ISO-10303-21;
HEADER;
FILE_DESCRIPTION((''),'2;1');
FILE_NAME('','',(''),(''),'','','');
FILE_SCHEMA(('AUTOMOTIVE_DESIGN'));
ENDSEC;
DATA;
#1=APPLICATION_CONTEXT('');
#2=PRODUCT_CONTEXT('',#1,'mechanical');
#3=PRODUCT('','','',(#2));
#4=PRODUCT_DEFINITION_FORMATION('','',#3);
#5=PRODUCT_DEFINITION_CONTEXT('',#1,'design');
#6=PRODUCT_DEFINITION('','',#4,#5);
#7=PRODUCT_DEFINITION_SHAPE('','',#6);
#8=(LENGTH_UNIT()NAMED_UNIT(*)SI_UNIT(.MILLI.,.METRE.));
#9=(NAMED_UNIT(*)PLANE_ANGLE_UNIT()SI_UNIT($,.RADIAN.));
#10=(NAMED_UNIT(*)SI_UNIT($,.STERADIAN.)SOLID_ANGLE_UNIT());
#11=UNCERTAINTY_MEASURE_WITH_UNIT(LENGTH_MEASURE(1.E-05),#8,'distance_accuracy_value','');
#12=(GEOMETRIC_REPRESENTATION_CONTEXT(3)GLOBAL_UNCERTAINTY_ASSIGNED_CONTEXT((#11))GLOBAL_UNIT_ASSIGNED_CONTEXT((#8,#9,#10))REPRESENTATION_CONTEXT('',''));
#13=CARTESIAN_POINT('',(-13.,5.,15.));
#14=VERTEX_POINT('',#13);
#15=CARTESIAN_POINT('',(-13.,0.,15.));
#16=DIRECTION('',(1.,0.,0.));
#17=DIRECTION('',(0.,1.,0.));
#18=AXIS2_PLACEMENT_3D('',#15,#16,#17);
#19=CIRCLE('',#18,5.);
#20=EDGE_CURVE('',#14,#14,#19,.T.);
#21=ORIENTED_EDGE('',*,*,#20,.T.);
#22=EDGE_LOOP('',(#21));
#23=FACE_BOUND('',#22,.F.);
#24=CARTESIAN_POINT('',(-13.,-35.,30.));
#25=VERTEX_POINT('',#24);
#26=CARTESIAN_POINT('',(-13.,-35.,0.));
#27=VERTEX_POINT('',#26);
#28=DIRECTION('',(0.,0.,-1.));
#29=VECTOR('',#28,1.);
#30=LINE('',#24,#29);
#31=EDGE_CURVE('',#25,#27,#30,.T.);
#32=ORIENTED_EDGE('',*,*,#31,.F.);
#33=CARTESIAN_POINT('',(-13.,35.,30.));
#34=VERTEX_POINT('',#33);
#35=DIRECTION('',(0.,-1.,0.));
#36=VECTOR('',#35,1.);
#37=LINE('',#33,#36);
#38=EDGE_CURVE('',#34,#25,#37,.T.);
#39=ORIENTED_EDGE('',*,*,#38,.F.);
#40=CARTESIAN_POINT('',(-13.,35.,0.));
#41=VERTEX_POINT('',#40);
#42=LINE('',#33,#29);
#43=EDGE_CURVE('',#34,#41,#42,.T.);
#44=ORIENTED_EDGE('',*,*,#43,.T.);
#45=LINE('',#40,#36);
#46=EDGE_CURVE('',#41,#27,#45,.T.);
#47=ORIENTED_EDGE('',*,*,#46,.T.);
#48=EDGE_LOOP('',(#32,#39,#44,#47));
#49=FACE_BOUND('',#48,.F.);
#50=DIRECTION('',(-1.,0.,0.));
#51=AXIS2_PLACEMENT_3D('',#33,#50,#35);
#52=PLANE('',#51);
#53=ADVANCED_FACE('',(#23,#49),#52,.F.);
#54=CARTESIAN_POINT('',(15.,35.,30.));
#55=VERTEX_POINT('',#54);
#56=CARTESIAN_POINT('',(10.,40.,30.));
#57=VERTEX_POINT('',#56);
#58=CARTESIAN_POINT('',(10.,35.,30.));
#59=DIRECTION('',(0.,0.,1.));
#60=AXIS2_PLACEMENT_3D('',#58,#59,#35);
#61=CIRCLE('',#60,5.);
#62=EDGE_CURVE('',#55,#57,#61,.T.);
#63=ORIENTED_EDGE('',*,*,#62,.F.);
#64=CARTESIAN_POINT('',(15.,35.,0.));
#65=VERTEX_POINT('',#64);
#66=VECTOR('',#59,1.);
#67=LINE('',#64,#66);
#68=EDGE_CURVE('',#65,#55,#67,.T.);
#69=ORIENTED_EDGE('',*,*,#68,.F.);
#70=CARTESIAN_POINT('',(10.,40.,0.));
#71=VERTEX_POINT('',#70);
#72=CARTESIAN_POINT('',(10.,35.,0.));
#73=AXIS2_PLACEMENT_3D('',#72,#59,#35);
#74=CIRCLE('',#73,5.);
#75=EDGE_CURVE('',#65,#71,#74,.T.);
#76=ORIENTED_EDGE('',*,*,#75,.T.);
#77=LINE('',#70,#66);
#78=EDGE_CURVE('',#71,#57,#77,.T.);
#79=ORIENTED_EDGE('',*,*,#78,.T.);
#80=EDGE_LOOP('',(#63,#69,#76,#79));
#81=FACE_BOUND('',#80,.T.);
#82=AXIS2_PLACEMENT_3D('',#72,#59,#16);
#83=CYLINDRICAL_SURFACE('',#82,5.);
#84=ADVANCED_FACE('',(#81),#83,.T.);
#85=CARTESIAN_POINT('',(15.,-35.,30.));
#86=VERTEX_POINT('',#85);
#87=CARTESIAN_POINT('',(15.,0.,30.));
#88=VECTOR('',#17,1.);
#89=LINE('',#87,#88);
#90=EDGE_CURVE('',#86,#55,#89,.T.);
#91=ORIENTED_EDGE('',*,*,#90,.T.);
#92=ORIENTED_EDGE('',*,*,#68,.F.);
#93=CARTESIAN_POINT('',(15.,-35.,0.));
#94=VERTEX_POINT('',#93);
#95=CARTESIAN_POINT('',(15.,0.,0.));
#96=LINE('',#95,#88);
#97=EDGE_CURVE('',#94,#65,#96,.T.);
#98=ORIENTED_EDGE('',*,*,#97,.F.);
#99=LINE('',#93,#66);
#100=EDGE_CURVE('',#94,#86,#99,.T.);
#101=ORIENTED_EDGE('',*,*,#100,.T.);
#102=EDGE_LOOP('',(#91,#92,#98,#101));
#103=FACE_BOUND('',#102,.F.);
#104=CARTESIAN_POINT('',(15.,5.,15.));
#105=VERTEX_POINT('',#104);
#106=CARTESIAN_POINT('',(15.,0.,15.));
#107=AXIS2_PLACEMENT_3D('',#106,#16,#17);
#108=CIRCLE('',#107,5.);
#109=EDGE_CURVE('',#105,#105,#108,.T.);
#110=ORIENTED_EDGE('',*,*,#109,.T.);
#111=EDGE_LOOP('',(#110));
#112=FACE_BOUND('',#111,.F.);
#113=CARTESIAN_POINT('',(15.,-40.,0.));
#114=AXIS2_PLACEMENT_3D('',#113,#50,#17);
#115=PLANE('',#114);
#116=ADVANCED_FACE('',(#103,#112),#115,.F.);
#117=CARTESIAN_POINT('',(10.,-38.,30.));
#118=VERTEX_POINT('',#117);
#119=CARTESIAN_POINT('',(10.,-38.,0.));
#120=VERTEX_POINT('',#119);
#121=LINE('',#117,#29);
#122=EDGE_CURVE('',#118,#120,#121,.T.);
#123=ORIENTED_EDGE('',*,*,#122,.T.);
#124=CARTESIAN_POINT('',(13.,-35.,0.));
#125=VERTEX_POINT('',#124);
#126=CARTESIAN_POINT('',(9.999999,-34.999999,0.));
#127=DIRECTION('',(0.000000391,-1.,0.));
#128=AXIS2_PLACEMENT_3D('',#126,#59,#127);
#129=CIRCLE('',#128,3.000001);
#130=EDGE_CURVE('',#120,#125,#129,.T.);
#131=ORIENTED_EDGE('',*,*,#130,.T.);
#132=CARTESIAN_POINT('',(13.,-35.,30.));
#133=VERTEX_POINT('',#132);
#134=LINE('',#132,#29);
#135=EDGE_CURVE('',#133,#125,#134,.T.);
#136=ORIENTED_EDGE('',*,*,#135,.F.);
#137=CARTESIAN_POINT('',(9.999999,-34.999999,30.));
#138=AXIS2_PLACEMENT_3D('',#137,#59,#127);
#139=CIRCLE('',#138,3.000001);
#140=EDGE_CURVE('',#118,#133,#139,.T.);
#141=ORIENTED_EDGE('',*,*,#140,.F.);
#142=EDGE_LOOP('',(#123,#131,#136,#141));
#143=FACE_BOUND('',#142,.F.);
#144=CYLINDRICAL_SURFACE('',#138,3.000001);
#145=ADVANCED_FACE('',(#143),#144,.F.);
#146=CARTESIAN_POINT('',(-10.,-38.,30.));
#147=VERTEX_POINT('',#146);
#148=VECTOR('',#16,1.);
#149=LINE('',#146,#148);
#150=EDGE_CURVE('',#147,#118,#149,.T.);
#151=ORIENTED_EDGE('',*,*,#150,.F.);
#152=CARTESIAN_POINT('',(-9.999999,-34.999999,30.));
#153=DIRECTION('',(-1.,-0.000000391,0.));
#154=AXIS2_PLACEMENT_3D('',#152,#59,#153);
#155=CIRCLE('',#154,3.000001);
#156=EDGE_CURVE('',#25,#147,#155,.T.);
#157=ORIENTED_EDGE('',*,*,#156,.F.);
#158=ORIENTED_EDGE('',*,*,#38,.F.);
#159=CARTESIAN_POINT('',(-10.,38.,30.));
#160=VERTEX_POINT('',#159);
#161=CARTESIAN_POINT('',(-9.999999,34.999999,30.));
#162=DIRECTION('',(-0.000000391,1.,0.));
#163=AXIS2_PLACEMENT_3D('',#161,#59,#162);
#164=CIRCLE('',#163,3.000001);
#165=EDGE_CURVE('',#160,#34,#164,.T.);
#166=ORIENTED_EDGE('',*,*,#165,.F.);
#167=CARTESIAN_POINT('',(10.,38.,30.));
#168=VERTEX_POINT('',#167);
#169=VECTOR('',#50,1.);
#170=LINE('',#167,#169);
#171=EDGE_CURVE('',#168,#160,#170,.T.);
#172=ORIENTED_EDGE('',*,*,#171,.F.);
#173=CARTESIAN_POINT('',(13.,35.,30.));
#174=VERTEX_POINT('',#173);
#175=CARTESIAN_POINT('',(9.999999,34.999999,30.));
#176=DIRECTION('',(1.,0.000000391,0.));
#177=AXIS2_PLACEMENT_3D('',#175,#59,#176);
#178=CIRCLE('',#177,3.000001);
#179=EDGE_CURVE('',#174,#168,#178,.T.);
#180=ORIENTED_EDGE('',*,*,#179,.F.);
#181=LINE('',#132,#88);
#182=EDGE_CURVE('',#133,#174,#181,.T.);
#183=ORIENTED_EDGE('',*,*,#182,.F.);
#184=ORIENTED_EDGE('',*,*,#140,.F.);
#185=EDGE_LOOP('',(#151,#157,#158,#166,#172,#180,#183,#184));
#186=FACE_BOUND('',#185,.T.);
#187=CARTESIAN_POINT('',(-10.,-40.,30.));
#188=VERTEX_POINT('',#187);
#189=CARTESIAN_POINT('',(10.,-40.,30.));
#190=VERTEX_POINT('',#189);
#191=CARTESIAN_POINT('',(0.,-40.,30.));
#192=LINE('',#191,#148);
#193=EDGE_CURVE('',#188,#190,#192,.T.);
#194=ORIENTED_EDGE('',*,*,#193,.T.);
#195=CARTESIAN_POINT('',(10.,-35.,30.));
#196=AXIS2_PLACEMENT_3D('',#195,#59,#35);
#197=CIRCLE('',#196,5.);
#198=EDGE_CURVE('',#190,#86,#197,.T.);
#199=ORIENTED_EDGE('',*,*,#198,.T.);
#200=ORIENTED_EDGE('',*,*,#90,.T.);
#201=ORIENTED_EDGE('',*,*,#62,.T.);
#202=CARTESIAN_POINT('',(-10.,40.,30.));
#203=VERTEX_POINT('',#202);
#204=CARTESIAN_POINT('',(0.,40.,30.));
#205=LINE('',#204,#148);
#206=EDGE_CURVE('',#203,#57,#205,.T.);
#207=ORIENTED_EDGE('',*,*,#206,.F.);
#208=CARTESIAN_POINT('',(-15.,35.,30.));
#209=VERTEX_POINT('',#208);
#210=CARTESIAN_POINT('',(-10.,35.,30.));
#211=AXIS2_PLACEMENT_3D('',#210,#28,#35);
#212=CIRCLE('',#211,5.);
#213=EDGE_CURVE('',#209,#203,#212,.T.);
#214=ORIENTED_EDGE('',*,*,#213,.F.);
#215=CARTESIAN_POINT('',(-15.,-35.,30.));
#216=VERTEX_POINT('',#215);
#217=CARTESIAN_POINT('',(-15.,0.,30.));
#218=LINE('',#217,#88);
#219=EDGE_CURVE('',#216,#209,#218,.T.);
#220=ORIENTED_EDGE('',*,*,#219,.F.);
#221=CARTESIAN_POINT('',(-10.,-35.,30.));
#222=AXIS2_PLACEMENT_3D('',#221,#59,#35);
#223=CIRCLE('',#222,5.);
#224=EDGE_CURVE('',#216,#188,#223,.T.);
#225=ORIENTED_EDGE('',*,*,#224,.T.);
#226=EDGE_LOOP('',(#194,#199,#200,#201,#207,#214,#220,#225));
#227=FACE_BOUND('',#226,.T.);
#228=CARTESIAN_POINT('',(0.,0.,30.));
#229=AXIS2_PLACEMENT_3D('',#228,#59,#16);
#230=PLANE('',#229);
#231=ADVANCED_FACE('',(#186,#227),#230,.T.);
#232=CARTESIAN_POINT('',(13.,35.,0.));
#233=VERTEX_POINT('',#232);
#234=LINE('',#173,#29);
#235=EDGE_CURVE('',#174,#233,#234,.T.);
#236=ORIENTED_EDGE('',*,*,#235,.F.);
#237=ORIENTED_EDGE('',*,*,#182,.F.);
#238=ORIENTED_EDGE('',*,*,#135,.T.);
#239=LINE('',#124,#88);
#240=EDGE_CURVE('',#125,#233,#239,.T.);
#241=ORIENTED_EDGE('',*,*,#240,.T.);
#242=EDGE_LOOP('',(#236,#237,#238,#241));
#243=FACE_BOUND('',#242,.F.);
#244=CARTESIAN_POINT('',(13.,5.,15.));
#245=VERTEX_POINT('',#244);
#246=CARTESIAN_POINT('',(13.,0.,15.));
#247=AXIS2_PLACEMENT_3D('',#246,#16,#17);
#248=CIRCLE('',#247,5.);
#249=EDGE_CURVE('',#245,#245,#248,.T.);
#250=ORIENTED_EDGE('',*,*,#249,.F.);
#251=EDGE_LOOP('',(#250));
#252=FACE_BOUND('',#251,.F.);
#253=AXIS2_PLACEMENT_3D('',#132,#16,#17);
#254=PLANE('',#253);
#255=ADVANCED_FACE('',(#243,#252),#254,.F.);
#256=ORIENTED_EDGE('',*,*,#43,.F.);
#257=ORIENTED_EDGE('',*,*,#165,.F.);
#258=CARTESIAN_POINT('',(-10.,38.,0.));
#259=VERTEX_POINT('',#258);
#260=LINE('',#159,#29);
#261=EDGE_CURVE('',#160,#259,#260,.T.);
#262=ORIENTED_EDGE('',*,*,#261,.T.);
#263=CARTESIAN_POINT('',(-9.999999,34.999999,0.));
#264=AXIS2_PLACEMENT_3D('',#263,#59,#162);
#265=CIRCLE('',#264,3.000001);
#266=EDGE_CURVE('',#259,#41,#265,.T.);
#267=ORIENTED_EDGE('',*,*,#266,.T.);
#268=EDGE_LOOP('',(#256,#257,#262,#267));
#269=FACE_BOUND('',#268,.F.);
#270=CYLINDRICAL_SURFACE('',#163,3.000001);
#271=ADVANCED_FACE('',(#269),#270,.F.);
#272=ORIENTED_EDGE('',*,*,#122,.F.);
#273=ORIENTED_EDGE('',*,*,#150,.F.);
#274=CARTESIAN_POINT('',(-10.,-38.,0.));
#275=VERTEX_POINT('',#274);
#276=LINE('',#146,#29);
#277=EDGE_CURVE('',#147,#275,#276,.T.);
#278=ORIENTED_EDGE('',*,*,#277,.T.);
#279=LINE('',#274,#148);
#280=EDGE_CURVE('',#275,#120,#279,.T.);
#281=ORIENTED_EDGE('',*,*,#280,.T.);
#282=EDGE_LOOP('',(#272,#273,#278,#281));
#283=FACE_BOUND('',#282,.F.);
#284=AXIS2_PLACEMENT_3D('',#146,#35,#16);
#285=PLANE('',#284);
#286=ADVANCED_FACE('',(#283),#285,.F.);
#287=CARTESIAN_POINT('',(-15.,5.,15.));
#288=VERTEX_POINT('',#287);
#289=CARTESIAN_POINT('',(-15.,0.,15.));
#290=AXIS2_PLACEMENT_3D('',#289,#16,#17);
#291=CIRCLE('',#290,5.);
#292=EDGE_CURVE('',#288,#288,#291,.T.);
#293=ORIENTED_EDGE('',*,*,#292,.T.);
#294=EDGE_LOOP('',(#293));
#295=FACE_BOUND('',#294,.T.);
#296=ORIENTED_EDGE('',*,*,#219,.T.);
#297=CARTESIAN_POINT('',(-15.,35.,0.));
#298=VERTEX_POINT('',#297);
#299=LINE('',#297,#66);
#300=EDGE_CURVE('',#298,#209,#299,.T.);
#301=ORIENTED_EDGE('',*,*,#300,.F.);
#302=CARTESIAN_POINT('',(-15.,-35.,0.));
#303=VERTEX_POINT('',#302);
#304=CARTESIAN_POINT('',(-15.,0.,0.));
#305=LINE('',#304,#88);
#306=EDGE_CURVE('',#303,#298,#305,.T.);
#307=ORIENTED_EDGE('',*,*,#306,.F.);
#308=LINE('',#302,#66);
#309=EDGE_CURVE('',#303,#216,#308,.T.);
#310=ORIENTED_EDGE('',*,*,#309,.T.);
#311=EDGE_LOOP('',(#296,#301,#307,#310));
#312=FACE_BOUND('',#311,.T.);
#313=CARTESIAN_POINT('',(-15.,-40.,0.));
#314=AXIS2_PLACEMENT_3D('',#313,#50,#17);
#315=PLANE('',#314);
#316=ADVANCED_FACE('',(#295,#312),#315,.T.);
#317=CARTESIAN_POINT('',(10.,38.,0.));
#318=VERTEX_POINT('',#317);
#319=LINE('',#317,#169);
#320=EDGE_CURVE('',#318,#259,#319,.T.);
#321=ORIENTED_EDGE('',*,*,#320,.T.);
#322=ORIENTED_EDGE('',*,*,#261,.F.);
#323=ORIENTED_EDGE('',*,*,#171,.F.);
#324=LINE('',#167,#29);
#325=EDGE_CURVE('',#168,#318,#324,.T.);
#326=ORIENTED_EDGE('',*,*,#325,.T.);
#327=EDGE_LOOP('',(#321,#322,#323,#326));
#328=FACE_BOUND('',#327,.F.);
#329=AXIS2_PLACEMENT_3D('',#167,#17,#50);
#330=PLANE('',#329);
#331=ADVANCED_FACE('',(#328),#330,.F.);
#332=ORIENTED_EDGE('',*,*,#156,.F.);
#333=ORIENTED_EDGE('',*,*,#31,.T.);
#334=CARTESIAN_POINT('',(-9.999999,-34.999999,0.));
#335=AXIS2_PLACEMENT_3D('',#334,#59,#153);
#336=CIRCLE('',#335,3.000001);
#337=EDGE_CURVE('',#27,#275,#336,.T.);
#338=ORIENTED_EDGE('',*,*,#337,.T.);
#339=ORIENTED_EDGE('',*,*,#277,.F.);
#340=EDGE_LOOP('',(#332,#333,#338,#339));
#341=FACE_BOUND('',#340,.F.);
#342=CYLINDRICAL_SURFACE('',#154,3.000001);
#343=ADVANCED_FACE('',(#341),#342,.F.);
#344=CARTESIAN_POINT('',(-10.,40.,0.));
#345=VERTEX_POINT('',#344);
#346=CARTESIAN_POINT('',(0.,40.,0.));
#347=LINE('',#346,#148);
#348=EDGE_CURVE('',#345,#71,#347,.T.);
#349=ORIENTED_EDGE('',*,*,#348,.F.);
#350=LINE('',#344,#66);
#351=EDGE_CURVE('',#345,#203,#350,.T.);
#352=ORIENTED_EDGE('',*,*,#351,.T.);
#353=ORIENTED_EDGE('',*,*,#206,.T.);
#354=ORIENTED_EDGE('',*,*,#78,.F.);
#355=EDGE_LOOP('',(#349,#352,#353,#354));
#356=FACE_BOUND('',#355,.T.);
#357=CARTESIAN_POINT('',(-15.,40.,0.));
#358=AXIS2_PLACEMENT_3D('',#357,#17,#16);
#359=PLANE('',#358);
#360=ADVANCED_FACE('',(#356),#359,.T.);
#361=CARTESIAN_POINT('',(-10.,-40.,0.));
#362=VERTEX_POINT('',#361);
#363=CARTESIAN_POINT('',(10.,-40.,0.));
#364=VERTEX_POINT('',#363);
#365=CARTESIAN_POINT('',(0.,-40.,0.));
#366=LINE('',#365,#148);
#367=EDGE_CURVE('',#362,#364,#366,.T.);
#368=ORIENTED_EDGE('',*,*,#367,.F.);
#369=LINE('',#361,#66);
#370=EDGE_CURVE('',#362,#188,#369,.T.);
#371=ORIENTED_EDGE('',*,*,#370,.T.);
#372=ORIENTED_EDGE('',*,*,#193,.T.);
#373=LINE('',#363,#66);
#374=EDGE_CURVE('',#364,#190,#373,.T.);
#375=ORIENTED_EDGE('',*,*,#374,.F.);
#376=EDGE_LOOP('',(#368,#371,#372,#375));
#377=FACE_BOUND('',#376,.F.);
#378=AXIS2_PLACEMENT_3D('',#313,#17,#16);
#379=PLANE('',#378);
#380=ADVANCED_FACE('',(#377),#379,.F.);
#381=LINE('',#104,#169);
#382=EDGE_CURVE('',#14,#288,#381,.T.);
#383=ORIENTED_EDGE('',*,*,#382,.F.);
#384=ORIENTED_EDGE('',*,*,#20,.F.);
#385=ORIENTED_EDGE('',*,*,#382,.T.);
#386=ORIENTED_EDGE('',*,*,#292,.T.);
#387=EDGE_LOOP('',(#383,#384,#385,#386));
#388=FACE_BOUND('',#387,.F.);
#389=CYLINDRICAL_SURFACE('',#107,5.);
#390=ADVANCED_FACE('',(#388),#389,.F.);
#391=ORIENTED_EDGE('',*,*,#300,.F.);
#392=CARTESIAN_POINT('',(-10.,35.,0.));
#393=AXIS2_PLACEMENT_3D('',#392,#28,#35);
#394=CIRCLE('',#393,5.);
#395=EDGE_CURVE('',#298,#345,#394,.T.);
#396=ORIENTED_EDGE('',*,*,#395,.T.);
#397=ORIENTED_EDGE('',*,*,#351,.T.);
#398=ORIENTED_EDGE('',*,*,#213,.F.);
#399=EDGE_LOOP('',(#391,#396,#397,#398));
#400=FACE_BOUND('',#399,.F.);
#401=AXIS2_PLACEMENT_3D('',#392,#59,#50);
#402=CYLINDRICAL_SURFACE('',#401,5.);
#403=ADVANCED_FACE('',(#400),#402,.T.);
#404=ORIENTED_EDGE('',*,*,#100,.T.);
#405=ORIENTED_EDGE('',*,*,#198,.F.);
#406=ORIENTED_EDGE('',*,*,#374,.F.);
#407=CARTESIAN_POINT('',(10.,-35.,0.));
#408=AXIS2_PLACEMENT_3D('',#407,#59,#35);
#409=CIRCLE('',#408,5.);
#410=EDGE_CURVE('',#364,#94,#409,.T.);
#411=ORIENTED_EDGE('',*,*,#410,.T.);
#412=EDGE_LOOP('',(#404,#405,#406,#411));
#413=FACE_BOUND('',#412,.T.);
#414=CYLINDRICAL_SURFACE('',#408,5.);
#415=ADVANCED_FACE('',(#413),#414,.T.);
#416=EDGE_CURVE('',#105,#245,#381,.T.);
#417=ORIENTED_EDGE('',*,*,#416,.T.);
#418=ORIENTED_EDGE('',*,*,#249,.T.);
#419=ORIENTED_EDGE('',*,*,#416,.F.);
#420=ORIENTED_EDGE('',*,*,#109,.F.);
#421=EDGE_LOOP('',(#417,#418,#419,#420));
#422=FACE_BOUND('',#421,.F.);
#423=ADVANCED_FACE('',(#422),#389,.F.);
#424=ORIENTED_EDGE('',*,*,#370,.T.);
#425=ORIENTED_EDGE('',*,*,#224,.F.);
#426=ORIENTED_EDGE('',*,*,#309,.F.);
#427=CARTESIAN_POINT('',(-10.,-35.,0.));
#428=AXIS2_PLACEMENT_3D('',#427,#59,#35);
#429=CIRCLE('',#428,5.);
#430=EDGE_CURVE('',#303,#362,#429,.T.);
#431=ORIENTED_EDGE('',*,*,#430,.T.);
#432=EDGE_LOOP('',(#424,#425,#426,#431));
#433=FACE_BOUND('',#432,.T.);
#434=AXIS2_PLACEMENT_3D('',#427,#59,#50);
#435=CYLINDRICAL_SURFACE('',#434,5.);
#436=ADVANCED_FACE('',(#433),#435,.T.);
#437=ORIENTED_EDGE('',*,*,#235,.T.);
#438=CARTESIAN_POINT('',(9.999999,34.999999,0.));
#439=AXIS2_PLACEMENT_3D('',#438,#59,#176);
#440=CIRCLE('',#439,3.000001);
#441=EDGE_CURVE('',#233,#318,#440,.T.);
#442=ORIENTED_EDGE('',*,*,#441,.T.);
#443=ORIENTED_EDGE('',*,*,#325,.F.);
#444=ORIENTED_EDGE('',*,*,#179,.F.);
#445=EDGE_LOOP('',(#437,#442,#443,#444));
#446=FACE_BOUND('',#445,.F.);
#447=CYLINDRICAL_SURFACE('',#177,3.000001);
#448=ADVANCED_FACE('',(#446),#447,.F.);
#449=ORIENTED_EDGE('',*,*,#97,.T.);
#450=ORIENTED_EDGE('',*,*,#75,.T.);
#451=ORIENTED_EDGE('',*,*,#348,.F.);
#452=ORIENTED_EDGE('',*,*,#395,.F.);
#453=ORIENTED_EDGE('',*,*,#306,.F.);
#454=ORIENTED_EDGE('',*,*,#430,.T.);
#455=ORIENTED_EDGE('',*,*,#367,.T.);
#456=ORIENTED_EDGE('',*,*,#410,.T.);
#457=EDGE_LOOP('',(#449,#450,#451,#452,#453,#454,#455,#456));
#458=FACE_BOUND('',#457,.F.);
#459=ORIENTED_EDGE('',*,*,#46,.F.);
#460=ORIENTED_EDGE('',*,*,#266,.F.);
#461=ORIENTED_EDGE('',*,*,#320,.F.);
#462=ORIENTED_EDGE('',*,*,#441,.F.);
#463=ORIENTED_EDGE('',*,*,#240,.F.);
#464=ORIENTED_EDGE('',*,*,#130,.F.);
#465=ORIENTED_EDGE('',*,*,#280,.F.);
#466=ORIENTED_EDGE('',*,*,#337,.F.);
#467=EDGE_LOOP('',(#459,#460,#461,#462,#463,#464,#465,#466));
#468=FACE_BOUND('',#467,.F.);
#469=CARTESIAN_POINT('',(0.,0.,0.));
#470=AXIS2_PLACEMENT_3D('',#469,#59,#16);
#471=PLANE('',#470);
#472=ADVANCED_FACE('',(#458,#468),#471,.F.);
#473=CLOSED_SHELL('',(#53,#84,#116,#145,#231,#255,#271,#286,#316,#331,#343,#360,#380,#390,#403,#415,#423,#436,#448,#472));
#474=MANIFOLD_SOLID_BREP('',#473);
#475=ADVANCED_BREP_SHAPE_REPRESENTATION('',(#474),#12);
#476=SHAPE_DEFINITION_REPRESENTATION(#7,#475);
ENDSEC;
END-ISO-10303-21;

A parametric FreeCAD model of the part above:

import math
import FreeCAD as App
import Part
import Sketcher
Q = App.Units.Quantity


def edges_at(feature, points):
    """Names of the edges that pass closest to the given points."""
    edges = feature.Shape.Edges
    near = lambda p: min(range(len(edges)), key=lambda i: edges[i].distToShape(Part.Vertex(*p))[0])
    return sorted({f"Edge{near(p) + 1}" for p in points})


def add_polygon(sketch, points):
    """Adds a closed chain of lines whose ends are joined by coincident constraints."""
    first, n = sketch.GeometryCount, len(points)
    for a, b in zip(points, points[1:] + points[:1]):
        sketch.addGeometry(Part.LineSegment(App.Vector(*a, 0), App.Vector(*b, 0)), False)
    for i in range(n):
        sketch.addConstraint(Sketcher.Constraint("Coincident", first + i, 2, first + (i + 1) % n, 1))

doc = App.newDocument("Part")
body = doc.addObject("PartDesign::Body", "Body")

sketch1 = doc.addObject("Sketcher::SketchObject", "Sketch")
body.addObject(sketch1)
sketch1.AttachmentSupport = (doc.XY_Plane, [""])
sketch1.MapMode = "FlatFace"
add_polygon(sketch1, [(-15, 40), (-15, -40), (15, -40), (15, 40)])
sketch1.addConstraint([
    Sketcher.Constraint("Vertical", 0),
    Sketcher.Constraint("Horizontal", 1),
    Sketcher.Constraint("Vertical", 2),
    Sketcher.Constraint("Horizontal", 3),
    Sketcher.Constraint("Symmetric", 0, 2, 2, 2, -1, 1),
    Sketcher.Constraint("DistanceX", 1, 1, 1, 2, Q("30 mm")),
    Sketcher.Constraint("DistanceY", 0, 2, 0, 1, Q("80 mm")),
])
pad1 = doc.addObject("PartDesign::Pad", "Pad")
body.addObject(pad1)
pad1.Profile = sketch1
pad1.Length = 30
doc.recompute()

fillet = doc.addObject("PartDesign::Fillet", "Fillet")
body.addObject(fillet)
fillet.Base = (pad1, edges_at(pad1, [
    (15, 40, 15),
    (-15, 40, 15),
    (-15, -40, 15),
    (15, -40, 15),
]))
fillet.Radius = 5

sketch2 = doc.addObject("Sketcher::SketchObject", "Sketch001")
body.addObject(sketch2)
sketch2.AttachmentSupport = (doc.XY_Plane, [""])
sketch2.MapMode = "FlatFace"
sketch2.AttachmentOffset = App.Placement(App.Vector(0, 0, 30), App.Rotation())
sketch2.addGeometry([
    Part.ArcOfCircle(Part.Circle(App.Vector(10, 35, 0), App.Vector(0, 0, 1), 3), math.radians(0), math.radians(90)),
    Part.LineSegment(App.Vector(10, 38, 0), App.Vector(-10, 38, 0)),
    Part.ArcOfCircle(Part.Circle(App.Vector(-10, 35, 0), App.Vector(0, 0, 1), 3), math.radians(90), math.radians(180)),
    Part.LineSegment(App.Vector(-13, 35, 0), App.Vector(-13, -35, 0)),
    Part.ArcOfCircle(Part.Circle(App.Vector(-10, -35, 0), App.Vector(0, 0, 1), 3), math.radians(-180), math.radians(-90)),
    Part.LineSegment(App.Vector(-10, -38, 0), App.Vector(10, -38, 0)),
    Part.ArcOfCircle(Part.Circle(App.Vector(10, -35, 0), App.Vector(0, 0, 1), 3), math.radians(-90), math.radians(0)),
    Part.LineSegment(App.Vector(13, -35, 0), App.Vector(13, 35, 0)),
], False)
sketch2.addConstraint([
    Sketcher.Constraint("Tangent", 0, 2, 1, 1),
    Sketcher.Constraint("Tangent", 1, 2, 2, 1),
    Sketcher.Constraint("Tangent", 2, 2, 3, 1),
    Sketcher.Constraint("Tangent", 3, 2, 4, 1),
    Sketcher.Constraint("Tangent", 4, 2, 5, 1),
    Sketcher.Constraint("Tangent", 5, 2, 6, 1),
    Sketcher.Constraint("Tangent", 6, 2, 7, 1),
    Sketcher.Constraint("Tangent", 7, 2, 0, 1),
    Sketcher.Constraint("Horizontal", 1),
    Sketcher.Constraint("Vertical", 3),
    Sketcher.Constraint("Horizontal", 5),
    Sketcher.Constraint("Vertical", 7),
    Sketcher.Constraint("Equal", 0, 2),
    Sketcher.Constraint("Equal", 2, 4),
    Sketcher.Constraint("Equal", 4, 6),
    Sketcher.Constraint("Symmetric", 0, 3, 4, 3, -1, 1),
    Sketcher.Constraint("Radius", 0, Q("3.000001 mm")),
    Sketcher.Constraint("DistanceX", 1, 2, 1, 1, Q("20 mm")),
    Sketcher.Constraint("DistanceY", 3, 2, 3, 1, Q("70 mm")),
])
pocket1 = doc.addObject("PartDesign::Pocket", "Pocket")
body.addObject(pocket1)
pocket1.Profile = sketch2
pocket1.Length = 30

sketch3 = doc.addObject("Sketcher::SketchObject", "Sketch002")
body.addObject(sketch3)
sketch3.AttachmentSupport = (doc.YZ_Plane, [""])
sketch3.MapMode = "FlatFace"
sketch3.AttachmentOffset = App.Placement(App.Vector(0, 0, 15), App.Rotation())
sketch3.addGeometry(Part.Circle(App.Vector(0, 15, 0), App.Vector(0, 0, 1), 5), False)
sketch3.addConstraint([
    Sketcher.Constraint("PointOnObject", 0, 3, -2),
    Sketcher.Constraint("Diameter", 0, Q("10 mm")),
    Sketcher.Constraint("DistanceY", -1, 1, 0, 3, Q("15 mm")),
])
pocket2 = doc.addObject("PartDesign::Pocket", "Pocket001")
body.addObject(pocket2)
pocket2.Profile = sketch3
pocket2.Length = 30

doc.recompute()
